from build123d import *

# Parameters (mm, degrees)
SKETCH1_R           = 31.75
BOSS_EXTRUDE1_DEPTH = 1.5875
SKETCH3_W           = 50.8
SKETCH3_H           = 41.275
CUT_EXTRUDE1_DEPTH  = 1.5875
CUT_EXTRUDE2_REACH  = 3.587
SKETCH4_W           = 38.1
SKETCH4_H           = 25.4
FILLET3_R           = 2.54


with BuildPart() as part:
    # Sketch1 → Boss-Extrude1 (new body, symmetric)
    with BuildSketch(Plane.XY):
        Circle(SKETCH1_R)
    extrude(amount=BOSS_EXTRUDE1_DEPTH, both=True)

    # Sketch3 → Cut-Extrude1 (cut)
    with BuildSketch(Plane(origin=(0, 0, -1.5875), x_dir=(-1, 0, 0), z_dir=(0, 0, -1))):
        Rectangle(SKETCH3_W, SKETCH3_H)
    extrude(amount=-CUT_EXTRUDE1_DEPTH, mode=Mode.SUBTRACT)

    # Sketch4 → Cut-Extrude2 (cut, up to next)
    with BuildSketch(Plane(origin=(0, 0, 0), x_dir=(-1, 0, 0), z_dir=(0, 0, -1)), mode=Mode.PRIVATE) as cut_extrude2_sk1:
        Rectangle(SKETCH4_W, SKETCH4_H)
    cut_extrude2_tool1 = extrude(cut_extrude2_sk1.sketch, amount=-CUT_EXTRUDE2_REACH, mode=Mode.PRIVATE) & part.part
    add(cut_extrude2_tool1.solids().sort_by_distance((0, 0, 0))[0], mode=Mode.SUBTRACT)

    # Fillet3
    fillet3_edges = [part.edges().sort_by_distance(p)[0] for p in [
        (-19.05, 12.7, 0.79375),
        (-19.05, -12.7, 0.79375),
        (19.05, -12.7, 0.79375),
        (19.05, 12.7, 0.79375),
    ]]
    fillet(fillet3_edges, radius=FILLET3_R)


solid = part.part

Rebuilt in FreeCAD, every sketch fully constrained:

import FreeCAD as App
import Part
import Sketcher
Q = App.Units.Quantity


def edges_at(feature, points):
    """Names of the edges that pass closest to the given points."""
    edges = feature.Shape.Edges
    near = lambda p: min(range(len(edges)), key=lambda i: edges[i].distToShape(Part.Vertex(*p))[0])
    return sorted({f"Edge{near(p) + 1}" for p in points})

doc = App.newDocument("Part")
body = doc.addObject("PartDesign::Body", "Body")

sketch1 = body.newObject("Sketcher::SketchObject", "Sketch")
sketch1.AttachmentSupport = (doc.getObject("XY_Plane"), [""])
sketch1.MapMode = "FlatFace"
sketch1.addGeometry(Part.Circle(App.Vector(0, 0, 0), App.Vector(0, 0, 1), 31.75), False)
sketch1.addConstraint([
    Sketcher.Constraint("Coincident", 0, 3, -1, 1),
    Sketcher.Constraint("Diameter", 0, Q("2.5 in")),
])
pad1 = body.newObject("PartDesign::Pad", "Pad")
pad1.Profile = sketch1
pad1.Length = Q("0.125 in")
pad1.Midplane = True

sketch2 = body.newObject("Sketcher::SketchObject", "Sketch001")
sketch2.AttachmentSupport = (doc.getObject("XY_Plane"), [""])
sketch2.MapMode = "FlatFace"
sketch2.AttachmentOffset = App.Placement(App.Vector(0, 0, -0.0625 * 25.4), App.Rotation())
sketch2.addGeometry([
    Part.LineSegment(App.Vector(25.4, 20.6375, 0), App.Vector(25.4, -20.6375, 0)),
    Part.LineSegment(App.Vector(25.4, -20.6375, 0), App.Vector(-25.4, -20.6375, 0)),
    Part.LineSegment(App.Vector(-25.4, -20.6375, 0), App.Vector(-25.4, 20.6375, 0)),
    Part.LineSegment(App.Vector(-25.4, 20.6375, 0), App.Vector(25.4, 20.6375, 0)),
], False)
sketch2.addConstraint([
    Sketcher.Constraint("Coincident", 0, 2, 1, 1),
    Sketcher.Constraint("Coincident", 1, 2, 2, 1),
    Sketcher.Constraint("Coincident", 2, 2, 3, 1),
    Sketcher.Constraint("Coincident", 3, 2, 0, 1),
    Sketcher.Constraint("Vertical", 0),
    Sketcher.Constraint("Horizontal", 1),
    Sketcher.Constraint("Vertical", 2),
    Sketcher.Constraint("Horizontal", 3),
    Sketcher.Constraint("Symmetric", 0, 2, 2, 2, -1, 1),
    Sketcher.Constraint("DistanceX", 1, 2, 1, 1, Q("2 in")),
    Sketcher.Constraint("DistanceY", 0, 2, 0, 1, Q("1.625 in")),
])
pocket1 = body.newObject("PartDesign::Pocket", "Pocket")
pocket1.Profile = sketch2
pocket1.Length = Q("0.0625 in")
pocket1.Reversed = True

sketch3 = body.newObject("Sketcher::SketchObject", "Sketch002")
sketch3.AttachmentSupport = (doc.getObject("XY_Plane"), [""])
sketch3.MapMode = "FlatFace"
sketch3.addGeometry([
    Part.LineSegment(App.Vector(19.05, 12.7, 0), App.Vector(19.05, -12.7, 0)),
    Part.LineSegment(App.Vector(19.05, -12.7, 0), App.Vector(-19.05, -12.7, 0)),
    Part.LineSegment(App.Vector(-19.05, -12.7, 0), App.Vector(-19.05, 12.7, 0)),
    Part.LineSegment(App.Vector(-19.05, 12.7, 0), App.Vector(19.05, 12.7, 0)),
], False)
sketch3.addConstraint([
    Sketcher.Constraint("Coincident", 0, 2, 1, 1),
    Sketcher.Constraint("Coincident", 1, 2, 2, 1),
    Sketcher.Constraint("Coincident", 2, 2, 3, 1),
    Sketcher.Constraint("Coincident", 3, 2, 0, 1),
    Sketcher.Constraint("Vertical", 0),
    Sketcher.Constraint("Horizontal", 1),
    Sketcher.Constraint("Vertical", 2),
    Sketcher.Constraint("Horizontal", 3),
    Sketcher.Constraint("Symmetric", 0, 2, 2, 2, -1, 1),
    Sketcher.Constraint("DistanceY", 0, 2, 0, 1, Q("1 in")),
    Sketcher.Constraint("DistanceX", 1, 2, 1, 1, Q("1.5 in")),
])
pocket2 = body.newObject("PartDesign::Pocket", "Pocket001")
pocket2.Profile = sketch3
pocket2.Type = "UpToFirst"
pocket2.Reversed = True
doc.recompute()

fillet = body.newObject("PartDesign::Fillet", "Fillet")
fillet.Base = (pocket2, edges_at(pocket2, [
    (-19.05, 12.7, 0.794),
    (-19.05, -12.7, 0.794),
    (19.05, -12.7, 0.794),
    (19.05, 12.7, 0.794),
]))
fillet.Radius = Q("0.1 in")

doc.recompute()
